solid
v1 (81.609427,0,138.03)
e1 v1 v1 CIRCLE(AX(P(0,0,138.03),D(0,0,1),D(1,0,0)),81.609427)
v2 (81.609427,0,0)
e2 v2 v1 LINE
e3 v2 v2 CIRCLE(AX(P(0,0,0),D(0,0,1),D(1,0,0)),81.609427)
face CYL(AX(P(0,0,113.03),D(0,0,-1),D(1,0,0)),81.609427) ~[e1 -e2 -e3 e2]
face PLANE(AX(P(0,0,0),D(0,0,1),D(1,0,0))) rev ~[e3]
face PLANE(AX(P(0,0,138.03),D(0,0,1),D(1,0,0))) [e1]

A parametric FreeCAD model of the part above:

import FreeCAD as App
import Part
import Sketcher
from FreeCAD import Vector

doc = App.newDocument("Part")
params = doc.addObject("Spreadsheet::Sheet", "Params")
for row, (alias, value) in enumerate([
    ("pad1_length", "113.03 mm"),
    ("pad2_length", "25 mm"),
], start=1):
    params.set(f"A{row}", alias)
    params.set(f"B{row}", "=" + value)
    params.setAlias(f"B{row}", alias)

body = doc.addObject("PartDesign::Body", "Body")

# Sketch on XY plane
sketch1 = body.newObject("Sketcher::SketchObject", "Sketch")
sketch1.AttachmentSupport = (doc.getObject("XY_Plane"), [""])
sketch1.MapMode = "FlatFace"
sketch1.addGeometry(Part.Circle(Vector(0, 0, 0), Vector(0, 0, 1), 82), False)
sketch1.addConstraint([
    Sketcher.Constraint("Coincident", 0, 3, -1, 1),
    Sketcher.Constraint("Diameter", 0, 163.218854),
])
pad1 = body.newObject("PartDesign::Pad", "Pad")
pad1.Profile = sketch1
pad1.setExpression("Length", "Params.pad1_length")

# Sketch on XY plane
sketch2 = body.newObject("Sketcher::SketchObject", "Sketch001")
sketch2.AttachmentSupport = (doc.getObject("XY_Plane"), [""])
sketch2.MapMode = "FlatFace"
sketch2.AttachmentOffset = App.Placement(Vector(0, 0, 113.03), App.Rotation())
sketch2.addGeometry(Part.Circle(Vector(0, 0, 0), Vector(0, 0, 1), 82), False)
sketch2.addConstraint([
    Sketcher.Constraint("Coincident", 0, 3, -1, 1),
    Sketcher.Constraint("Diameter", 0, 163.218854),
])
pad2 = body.newObject("PartDesign::Pad", "Pad001")
pad2.Profile = sketch2
pad2.setExpression("Length", "Params.pad2_length")

doc.recompute()
